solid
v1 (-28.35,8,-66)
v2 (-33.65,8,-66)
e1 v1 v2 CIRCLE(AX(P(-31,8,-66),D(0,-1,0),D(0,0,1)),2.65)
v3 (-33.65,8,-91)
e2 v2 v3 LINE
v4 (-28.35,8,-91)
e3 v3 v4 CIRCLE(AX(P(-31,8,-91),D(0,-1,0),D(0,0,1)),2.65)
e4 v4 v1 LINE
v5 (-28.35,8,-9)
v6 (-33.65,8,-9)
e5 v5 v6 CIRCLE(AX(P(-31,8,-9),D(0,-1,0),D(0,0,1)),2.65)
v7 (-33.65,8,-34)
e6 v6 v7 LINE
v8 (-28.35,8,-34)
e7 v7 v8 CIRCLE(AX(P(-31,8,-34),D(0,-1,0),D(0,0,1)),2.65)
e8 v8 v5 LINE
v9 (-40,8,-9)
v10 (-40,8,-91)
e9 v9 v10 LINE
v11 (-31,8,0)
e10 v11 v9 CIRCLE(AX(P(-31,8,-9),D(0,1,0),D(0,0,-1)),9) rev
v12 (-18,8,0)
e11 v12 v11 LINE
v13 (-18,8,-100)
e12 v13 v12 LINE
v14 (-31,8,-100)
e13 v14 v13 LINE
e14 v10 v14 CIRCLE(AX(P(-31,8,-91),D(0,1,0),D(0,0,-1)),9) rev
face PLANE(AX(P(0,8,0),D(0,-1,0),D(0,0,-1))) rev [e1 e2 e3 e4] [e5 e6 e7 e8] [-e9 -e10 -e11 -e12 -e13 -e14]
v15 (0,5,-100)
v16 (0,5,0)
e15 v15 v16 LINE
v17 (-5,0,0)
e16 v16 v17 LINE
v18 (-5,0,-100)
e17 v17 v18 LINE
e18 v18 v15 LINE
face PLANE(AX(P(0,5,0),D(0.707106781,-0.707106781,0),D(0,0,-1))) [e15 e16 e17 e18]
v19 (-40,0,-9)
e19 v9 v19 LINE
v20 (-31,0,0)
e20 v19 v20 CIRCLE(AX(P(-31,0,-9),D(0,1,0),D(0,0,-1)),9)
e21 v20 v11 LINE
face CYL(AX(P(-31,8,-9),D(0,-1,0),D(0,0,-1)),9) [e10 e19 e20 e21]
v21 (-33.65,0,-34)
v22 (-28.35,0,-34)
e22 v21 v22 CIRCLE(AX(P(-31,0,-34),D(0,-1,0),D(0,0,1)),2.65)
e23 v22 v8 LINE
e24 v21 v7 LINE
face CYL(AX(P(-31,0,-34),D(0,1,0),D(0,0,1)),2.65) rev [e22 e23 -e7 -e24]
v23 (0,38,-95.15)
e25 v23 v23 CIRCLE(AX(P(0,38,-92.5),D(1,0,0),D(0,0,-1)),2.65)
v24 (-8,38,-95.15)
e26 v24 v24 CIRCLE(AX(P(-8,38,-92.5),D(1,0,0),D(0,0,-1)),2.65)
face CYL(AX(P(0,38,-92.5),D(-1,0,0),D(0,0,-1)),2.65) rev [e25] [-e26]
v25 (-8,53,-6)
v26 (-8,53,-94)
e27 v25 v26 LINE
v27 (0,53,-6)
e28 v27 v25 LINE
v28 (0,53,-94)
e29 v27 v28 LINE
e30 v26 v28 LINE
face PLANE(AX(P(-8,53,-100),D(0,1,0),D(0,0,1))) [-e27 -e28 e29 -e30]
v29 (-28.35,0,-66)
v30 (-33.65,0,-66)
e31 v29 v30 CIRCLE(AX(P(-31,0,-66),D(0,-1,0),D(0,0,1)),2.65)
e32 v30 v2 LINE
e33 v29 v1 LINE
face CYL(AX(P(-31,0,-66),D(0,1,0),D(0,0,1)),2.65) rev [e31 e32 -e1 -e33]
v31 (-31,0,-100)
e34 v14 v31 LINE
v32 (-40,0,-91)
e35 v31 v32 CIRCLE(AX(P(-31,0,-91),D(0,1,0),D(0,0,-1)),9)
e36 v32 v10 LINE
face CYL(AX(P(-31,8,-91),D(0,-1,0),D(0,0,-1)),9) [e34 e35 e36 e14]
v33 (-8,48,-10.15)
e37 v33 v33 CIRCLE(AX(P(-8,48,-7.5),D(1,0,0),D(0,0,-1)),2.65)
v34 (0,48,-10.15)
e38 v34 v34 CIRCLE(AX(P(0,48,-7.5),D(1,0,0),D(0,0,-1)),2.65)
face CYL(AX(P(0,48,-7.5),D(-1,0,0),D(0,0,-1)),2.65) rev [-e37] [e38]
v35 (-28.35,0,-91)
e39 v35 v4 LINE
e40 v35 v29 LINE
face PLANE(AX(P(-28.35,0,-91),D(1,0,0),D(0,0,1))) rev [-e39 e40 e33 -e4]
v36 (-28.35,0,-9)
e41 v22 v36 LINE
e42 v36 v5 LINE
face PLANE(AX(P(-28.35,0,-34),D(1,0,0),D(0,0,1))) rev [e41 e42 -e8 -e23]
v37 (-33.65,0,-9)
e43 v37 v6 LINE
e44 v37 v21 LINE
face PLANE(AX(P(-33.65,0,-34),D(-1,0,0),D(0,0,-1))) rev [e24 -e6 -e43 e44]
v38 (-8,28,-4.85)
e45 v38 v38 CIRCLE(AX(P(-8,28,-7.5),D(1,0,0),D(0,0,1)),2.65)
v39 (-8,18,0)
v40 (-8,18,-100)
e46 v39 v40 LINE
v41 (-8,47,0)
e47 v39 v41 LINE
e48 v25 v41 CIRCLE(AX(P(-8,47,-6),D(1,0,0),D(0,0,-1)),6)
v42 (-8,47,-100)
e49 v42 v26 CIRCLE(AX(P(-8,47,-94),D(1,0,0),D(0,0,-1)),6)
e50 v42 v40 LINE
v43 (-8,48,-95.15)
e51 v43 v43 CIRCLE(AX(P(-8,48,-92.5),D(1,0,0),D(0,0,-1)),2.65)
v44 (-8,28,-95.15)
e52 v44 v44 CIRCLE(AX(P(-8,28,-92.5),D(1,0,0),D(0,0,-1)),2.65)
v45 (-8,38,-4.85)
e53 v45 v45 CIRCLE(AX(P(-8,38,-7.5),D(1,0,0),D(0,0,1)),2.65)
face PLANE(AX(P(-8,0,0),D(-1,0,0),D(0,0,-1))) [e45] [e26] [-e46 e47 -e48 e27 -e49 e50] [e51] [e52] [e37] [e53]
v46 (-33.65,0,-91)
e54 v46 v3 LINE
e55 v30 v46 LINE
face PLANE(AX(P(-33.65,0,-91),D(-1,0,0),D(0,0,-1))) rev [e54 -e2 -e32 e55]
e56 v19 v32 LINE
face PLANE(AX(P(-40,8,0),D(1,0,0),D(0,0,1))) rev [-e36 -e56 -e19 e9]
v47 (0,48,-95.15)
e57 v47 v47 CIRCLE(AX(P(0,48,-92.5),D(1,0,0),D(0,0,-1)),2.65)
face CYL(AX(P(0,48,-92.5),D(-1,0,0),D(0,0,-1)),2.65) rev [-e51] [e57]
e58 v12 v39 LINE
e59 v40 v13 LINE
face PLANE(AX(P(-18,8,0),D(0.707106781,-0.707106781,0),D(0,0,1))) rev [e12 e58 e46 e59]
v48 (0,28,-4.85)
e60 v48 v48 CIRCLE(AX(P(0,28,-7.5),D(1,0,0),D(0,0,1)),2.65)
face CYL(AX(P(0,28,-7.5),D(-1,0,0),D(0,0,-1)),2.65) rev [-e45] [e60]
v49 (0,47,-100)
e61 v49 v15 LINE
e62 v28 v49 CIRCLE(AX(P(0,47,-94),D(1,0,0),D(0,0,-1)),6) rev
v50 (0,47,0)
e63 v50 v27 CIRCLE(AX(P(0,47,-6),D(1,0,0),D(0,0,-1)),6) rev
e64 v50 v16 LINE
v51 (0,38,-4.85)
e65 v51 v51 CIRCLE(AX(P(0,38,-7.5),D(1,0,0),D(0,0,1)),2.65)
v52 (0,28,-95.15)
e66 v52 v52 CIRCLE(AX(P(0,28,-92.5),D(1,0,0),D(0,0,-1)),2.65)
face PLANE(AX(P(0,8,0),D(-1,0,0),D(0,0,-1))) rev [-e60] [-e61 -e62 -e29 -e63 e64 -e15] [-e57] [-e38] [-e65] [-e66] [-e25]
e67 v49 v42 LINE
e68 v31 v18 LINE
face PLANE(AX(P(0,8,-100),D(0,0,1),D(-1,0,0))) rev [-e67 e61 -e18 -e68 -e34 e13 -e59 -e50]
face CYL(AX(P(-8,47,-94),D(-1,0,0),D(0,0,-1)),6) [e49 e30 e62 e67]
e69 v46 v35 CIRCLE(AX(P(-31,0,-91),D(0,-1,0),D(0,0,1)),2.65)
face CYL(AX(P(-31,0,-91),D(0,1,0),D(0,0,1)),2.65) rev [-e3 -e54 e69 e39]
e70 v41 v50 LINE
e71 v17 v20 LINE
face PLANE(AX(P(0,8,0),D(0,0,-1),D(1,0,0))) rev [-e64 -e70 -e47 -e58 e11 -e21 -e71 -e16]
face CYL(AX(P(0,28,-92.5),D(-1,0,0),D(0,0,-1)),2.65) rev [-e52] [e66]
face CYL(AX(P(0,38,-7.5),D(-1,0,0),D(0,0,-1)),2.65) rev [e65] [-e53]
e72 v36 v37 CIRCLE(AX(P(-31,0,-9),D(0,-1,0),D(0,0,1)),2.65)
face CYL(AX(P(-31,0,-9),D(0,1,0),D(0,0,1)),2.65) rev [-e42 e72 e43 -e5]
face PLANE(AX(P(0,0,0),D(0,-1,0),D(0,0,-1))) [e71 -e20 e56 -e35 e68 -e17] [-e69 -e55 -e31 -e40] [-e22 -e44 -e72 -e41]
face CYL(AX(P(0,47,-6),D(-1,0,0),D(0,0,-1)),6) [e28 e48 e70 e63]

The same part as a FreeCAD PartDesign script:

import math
import FreeCAD as App
import Part
import Sketcher
from FreeCAD import Vector
Q = App.Units.Quantity


def edges_at(feature, points):
    """Names of the edges that pass closest to the given points."""
    edges = feature.Shape.Edges
    near = lambda p: min(range(len(edges)), key=lambda i: edges[i].distToShape(Part.Vertex(*p))[0])
    return sorted({f"Edge{near(p) + 1}" for p in points})

doc = App.newDocument("Part")
body = doc.addObject("PartDesign::Body", "Body")

# Sketch on XZ plane
sketch1 = doc.addObject("Sketcher::SketchObject", "Sketch")
body.addObject(sketch1)
sketch1.AttachmentSupport = (doc.XZ_Plane, [""])
sketch1.MapMode = "FlatFace"
sketch1.addGeometry([
    Part.LineSegment(Vector(0, -100, 0), Vector(0, 0, 0)),
    Part.LineSegment(Vector(0, 0, 0), Vector(40, 0, 0)),
    Part.LineSegment(Vector(40, 0, 0), Vector(40, -100, 0)),
    Part.LineSegment(Vector(40, -100, 0), Vector(0, -100, 0)),
], False)
sketch1.addConstraint([
    Sketcher.Constraint("Coincident", 0, 2, 1, 1),
    Sketcher.Constraint("Coincident", 1, 2, 2, 1),
    Sketcher.Constraint("Coincident", 2, 2, 3, 1),
    Sketcher.Constraint("Coincident", 3, 2, 0, 1),
    Sketcher.Constraint("Vertical", 0),
    Sketcher.Constraint("Horizontal", 1),
    Sketcher.Constraint("Vertical", 2),
    Sketcher.Constraint("Horizontal", 3),
    Sketcher.Constraint("Coincident", 0, 2, -1, 1),
    Sketcher.Constraint("DistanceX", 1, 1, 1, 2, Q("40 mm")),
    Sketcher.Constraint("DistanceY", 0, 1, 0, 2, Q("100 mm")),
])
pad1 = doc.addObject("PartDesign::Pad", "Pad")
body.addObject(pad1)
pad1.Profile = sketch1
pad1.Length = 8
pad1.Reversed = True

# Sketch on YZ plane
sketch2 = doc.addObject("Sketcher::SketchObject", "Sketch001")
body.addObject(sketch2)
sketch2.AttachmentSupport = (doc.YZ_Plane, [""])
sketch2.MapMode = "FlatFace"
sketch2.addGeometry([
    Part.LineSegment(Vector(53, -100, 0), Vector(0, -100, 0)),
    Part.LineSegment(Vector(0, -100, 0), Vector(0, 0, 0)),
    Part.LineSegment(Vector(0, 0, 0), Vector(53, 0, 0)),
    Part.LineSegment(Vector(53, 0, 0), Vector(53, -100, 0)),
], False)
sketch2.addConstraint([
    Sketcher.Constraint("Coincident", 0, 2, 1, 1),
    Sketcher.Constraint("Coincident", 1, 2, 2, 1),
    Sketcher.Constraint("Coincident", 2, 2, 3, 1),
    Sketcher.Constraint("Coincident", 3, 2, 0, 1),
    Sketcher.Constraint("Horizontal", 0),
    Sketcher.Constraint("Vertical", 1),
    Sketcher.Constraint("Horizontal", 2),
    Sketcher.Constraint("Vertical", 3),
    Sketcher.Constraint("Coincident", 1, 2, -1, 1),
    Sketcher.Constraint("DistanceX", 0, 2, 0, 1, Q("53 mm")),
    Sketcher.Constraint("DistanceY", 1, 1, 1, 2, Q("100 mm")),
])
pad2 = doc.addObject("PartDesign::Pad", "Pad001")
body.addObject(pad2)
pad2.Profile = sketch2
pad2.Length = 8

# Sketch on YZ plane
sketch3 = doc.addObject("Sketcher::SketchObject", "Sketch002")
body.addObject(sketch3)
sketch3.AttachmentSupport = (doc.YZ_Plane, [""])
sketch3.MapMode = "FlatFace"
sketch3.AttachmentOffset = App.Placement(Vector(0, 0, 8), App.Rotation())
sketch3.addGeometry([
    Part.Circle(Vector(48, -7.5, 0), Vector(0, 0, 1), 2.6),  # 0
    Part.Circle(Vector(28, -92.5, 0), Vector(0, 0, 1), 2.6),  # 1
    Part.Circle(Vector(48, -92.5, 0), Vector(0, 0, 1), 2.6),  # 2
    Part.Circle(Vector(38, -92.5, 0), Vector(0, 0, 1), 2.6),  # 3
    Part.Circle(Vector(28, -7.5, 0), Vector(0, 0, 1), 2.6),  # 4
    Part.Circle(Vector(38, -7.5, 0), Vector(0, 0, 1), 2.6),  # 5
], False)
sketch3.addConstraint([
    Sketcher.Constraint("Equal", 0, 1),
    Sketcher.Constraint("Equal", 1, 2),
    Sketcher.Constraint("Equal", 2, 3),
    Sketcher.Constraint("Equal", 3, 4),
    Sketcher.Constraint("Equal", 4, 5),
    Sketcher.Constraint("Horizontal", 1, 3, 2, 3),
    Sketcher.Constraint("Horizontal", 2, 3, 3, 3),
    Sketcher.Constraint("Horizontal", 0, 3, 4, 3),
    Sketcher.Constraint("Horizontal", 4, 3, 5, 3),
    Sketcher.Constraint("Vertical", 0, 3, 2, 3),
    Sketcher.Constraint("Vertical", 1, 3, 4, 3),
    Sketcher.Constraint("Vertical", 3, 3, 5, 3),
    Sketcher.Constraint("Diameter", 0, Q("5.3 mm")),
    Sketcher.Constraint("DistanceX", -1, 1, 0, 3, Q("48 mm")),
    Sketcher.Constraint("DistanceX", -1, 1, 1, 3, Q("28 mm")),
    Sketcher.Constraint("DistanceX", -1, 1, 3, 3, Q("38 mm")),
    Sketcher.Constraint("DistanceY", 1, 3, 0, 3, Q("85 mm")),
    Sketcher.Constraint("DistanceY", 0, 3, -1, 1, Q("7.5 mm")),
])
pocket1 = doc.addObject("PartDesign::Pocket", "Pocket")
body.addObject(pocket1)
pocket1.Profile = sketch3
pocket1.Type = "ThroughAll"
doc.recompute()

fillet = doc.addObject("PartDesign::Fillet", "Fillet")
body.addObject(fillet)
fillet.Base = (pocket1, edges_at(pocket1, [(4, 53, 0), (4, 53, -100)]))
fillet.Radius = 6
doc.recompute()

chamfer = doc.addObject("PartDesign::Chamfer", "Chamfer")
body.addObject(chamfer)
chamfer.Base = (fillet, edges_at(fillet, [(8, 8, -50)]))
chamfer.Size = 10
doc.recompute()

fillet2 = doc.addObject("PartDesign::Fillet", "Fillet001")
body.addObject(fillet2)
fillet2.Base = (chamfer, edges_at(chamfer, [(40, 4, -100), (40, 4, 0)]))
fillet2.Radius = 9

# Sketch on XZ plane
sketch4 = doc.addObject("Sketcher::SketchObject", "Sketch003")
body.addObject(sketch4)
sketch4.AttachmentSupport = (doc.XZ_Plane, [""])
sketch4.MapMode = "FlatFace"
sketch4.AttachmentOffset = App.Placement(Vector(0, 0, -8), App.Rotation())
sketch4.addGeometry([
    Part.LineSegment(Vector(33.6, -66, 0), Vector(33.6, -91, 0)),  # 0
    Part.ArcOfCircle(Part.Circle(Vector(31, -91, 0), Vector(0, 0, 1), 2.6), math.radians(180), math.radians(360)),  # 1
    Part.LineSegment(Vector(28.4, -91, 0), Vector(28.4, -66, 0)),  # 2
    Part.ArcOfCircle(Part.Circle(Vector(31, -66, 0), Vector(0, 0, 1), 2.6), math.radians(0), math.radians(180)),  # 3
    Part.LineSegment(Vector(33.6, -9, 0), Vector(33.6, -34, 0)),  # 4
    Part.ArcOfCircle(Part.Circle(Vector(31, -34, 0), Vector(0, 0, 1), 2.6), math.radians(180), math.radians(360)),  # 5
    Part.LineSegment(Vector(28.4, -34, 0), Vector(28.4, -9, 0)),  # 6
    Part.ArcOfCircle(Part.Circle(Vector(31, -9, 0), Vector(0, 0, 1), 2.6), math.radians(0), math.radians(180)),  # 7
], False)
sketch4.addConstraint([
    Sketcher.Constraint("Tangent", 0, 2, 1, 2),
    Sketcher.Constraint("Tangent", 1, 1, 2, 1),
    Sketcher.Constraint("Tangent", 2, 2, 3, 2),
    Sketcher.Constraint("Tangent", 3, 1, 0, 1),
    Sketcher.Constraint("Tangent", 4, 2, 5, 2),
    Sketcher.Constraint("Tangent", 5, 1, 6, 1),
    Sketcher.Constraint("Tangent", 6, 2, 7, 2),
    Sketcher.Constraint("Tangent", 7, 1, 4, 1),
    Sketcher.Constraint("Vertical", 0),
    Sketcher.Constraint("Vertical", 2),
    Sketcher.Constraint("Vertical", 4),
    Sketcher.Constraint("Vertical", 6),
    Sketcher.Constraint("Equal", 3, 5),
    Sketcher.Constraint("Vertical", 3, 3, 5, 3),
    Sketcher.Constraint("Equal", 2, 4),
    Sketcher.Constraint("DistanceY", 0, 2, 0, 1, Q("25 mm")),
    Sketcher.Constraint("Radius", 1, Q("2.65 mm")),
    Sketcher.Constraint("DistanceX", -1, 1, 1, 3, Q("31 mm")),
    Sketcher.Constraint("DistanceY", 1, 3, -1, 1, Q("91 mm")),
    Sketcher.Constraint("DistanceY", 5, 3, -1, 1, Q("34 mm")),
])
pocket2 = doc.addObject("PartDesign::Pocket", "Pocket001")
body.addObject(pocket2)
pocket2.Profile = sketch4
pocket2.Type = "ThroughAll"
pocket2.Reversed = True
doc.recompute()

chamfer2 = doc.addObject("PartDesign::Chamfer", "Chamfer001")
body.addObject(chamfer2)
chamfer2.Base = (pocket2, edges_at(pocket2, [(0, 0, -50)]))
chamfer2.Size = 5
body2 = doc.addObject("PartDesign::Body", "Body001")
doc.recompute()

mirroring = doc.addObject("Part::Mirroring", "Mirroring")
mirroring.Source = body
mirroring.Base = Vector(0, 8, 0)
mirroring.Normal = Vector(1, 0, 0)
body2.BaseFeature = mirroring
doc.recompute()
body.Visibility = False
mirroring.Visibility = False

doc.recompute()
